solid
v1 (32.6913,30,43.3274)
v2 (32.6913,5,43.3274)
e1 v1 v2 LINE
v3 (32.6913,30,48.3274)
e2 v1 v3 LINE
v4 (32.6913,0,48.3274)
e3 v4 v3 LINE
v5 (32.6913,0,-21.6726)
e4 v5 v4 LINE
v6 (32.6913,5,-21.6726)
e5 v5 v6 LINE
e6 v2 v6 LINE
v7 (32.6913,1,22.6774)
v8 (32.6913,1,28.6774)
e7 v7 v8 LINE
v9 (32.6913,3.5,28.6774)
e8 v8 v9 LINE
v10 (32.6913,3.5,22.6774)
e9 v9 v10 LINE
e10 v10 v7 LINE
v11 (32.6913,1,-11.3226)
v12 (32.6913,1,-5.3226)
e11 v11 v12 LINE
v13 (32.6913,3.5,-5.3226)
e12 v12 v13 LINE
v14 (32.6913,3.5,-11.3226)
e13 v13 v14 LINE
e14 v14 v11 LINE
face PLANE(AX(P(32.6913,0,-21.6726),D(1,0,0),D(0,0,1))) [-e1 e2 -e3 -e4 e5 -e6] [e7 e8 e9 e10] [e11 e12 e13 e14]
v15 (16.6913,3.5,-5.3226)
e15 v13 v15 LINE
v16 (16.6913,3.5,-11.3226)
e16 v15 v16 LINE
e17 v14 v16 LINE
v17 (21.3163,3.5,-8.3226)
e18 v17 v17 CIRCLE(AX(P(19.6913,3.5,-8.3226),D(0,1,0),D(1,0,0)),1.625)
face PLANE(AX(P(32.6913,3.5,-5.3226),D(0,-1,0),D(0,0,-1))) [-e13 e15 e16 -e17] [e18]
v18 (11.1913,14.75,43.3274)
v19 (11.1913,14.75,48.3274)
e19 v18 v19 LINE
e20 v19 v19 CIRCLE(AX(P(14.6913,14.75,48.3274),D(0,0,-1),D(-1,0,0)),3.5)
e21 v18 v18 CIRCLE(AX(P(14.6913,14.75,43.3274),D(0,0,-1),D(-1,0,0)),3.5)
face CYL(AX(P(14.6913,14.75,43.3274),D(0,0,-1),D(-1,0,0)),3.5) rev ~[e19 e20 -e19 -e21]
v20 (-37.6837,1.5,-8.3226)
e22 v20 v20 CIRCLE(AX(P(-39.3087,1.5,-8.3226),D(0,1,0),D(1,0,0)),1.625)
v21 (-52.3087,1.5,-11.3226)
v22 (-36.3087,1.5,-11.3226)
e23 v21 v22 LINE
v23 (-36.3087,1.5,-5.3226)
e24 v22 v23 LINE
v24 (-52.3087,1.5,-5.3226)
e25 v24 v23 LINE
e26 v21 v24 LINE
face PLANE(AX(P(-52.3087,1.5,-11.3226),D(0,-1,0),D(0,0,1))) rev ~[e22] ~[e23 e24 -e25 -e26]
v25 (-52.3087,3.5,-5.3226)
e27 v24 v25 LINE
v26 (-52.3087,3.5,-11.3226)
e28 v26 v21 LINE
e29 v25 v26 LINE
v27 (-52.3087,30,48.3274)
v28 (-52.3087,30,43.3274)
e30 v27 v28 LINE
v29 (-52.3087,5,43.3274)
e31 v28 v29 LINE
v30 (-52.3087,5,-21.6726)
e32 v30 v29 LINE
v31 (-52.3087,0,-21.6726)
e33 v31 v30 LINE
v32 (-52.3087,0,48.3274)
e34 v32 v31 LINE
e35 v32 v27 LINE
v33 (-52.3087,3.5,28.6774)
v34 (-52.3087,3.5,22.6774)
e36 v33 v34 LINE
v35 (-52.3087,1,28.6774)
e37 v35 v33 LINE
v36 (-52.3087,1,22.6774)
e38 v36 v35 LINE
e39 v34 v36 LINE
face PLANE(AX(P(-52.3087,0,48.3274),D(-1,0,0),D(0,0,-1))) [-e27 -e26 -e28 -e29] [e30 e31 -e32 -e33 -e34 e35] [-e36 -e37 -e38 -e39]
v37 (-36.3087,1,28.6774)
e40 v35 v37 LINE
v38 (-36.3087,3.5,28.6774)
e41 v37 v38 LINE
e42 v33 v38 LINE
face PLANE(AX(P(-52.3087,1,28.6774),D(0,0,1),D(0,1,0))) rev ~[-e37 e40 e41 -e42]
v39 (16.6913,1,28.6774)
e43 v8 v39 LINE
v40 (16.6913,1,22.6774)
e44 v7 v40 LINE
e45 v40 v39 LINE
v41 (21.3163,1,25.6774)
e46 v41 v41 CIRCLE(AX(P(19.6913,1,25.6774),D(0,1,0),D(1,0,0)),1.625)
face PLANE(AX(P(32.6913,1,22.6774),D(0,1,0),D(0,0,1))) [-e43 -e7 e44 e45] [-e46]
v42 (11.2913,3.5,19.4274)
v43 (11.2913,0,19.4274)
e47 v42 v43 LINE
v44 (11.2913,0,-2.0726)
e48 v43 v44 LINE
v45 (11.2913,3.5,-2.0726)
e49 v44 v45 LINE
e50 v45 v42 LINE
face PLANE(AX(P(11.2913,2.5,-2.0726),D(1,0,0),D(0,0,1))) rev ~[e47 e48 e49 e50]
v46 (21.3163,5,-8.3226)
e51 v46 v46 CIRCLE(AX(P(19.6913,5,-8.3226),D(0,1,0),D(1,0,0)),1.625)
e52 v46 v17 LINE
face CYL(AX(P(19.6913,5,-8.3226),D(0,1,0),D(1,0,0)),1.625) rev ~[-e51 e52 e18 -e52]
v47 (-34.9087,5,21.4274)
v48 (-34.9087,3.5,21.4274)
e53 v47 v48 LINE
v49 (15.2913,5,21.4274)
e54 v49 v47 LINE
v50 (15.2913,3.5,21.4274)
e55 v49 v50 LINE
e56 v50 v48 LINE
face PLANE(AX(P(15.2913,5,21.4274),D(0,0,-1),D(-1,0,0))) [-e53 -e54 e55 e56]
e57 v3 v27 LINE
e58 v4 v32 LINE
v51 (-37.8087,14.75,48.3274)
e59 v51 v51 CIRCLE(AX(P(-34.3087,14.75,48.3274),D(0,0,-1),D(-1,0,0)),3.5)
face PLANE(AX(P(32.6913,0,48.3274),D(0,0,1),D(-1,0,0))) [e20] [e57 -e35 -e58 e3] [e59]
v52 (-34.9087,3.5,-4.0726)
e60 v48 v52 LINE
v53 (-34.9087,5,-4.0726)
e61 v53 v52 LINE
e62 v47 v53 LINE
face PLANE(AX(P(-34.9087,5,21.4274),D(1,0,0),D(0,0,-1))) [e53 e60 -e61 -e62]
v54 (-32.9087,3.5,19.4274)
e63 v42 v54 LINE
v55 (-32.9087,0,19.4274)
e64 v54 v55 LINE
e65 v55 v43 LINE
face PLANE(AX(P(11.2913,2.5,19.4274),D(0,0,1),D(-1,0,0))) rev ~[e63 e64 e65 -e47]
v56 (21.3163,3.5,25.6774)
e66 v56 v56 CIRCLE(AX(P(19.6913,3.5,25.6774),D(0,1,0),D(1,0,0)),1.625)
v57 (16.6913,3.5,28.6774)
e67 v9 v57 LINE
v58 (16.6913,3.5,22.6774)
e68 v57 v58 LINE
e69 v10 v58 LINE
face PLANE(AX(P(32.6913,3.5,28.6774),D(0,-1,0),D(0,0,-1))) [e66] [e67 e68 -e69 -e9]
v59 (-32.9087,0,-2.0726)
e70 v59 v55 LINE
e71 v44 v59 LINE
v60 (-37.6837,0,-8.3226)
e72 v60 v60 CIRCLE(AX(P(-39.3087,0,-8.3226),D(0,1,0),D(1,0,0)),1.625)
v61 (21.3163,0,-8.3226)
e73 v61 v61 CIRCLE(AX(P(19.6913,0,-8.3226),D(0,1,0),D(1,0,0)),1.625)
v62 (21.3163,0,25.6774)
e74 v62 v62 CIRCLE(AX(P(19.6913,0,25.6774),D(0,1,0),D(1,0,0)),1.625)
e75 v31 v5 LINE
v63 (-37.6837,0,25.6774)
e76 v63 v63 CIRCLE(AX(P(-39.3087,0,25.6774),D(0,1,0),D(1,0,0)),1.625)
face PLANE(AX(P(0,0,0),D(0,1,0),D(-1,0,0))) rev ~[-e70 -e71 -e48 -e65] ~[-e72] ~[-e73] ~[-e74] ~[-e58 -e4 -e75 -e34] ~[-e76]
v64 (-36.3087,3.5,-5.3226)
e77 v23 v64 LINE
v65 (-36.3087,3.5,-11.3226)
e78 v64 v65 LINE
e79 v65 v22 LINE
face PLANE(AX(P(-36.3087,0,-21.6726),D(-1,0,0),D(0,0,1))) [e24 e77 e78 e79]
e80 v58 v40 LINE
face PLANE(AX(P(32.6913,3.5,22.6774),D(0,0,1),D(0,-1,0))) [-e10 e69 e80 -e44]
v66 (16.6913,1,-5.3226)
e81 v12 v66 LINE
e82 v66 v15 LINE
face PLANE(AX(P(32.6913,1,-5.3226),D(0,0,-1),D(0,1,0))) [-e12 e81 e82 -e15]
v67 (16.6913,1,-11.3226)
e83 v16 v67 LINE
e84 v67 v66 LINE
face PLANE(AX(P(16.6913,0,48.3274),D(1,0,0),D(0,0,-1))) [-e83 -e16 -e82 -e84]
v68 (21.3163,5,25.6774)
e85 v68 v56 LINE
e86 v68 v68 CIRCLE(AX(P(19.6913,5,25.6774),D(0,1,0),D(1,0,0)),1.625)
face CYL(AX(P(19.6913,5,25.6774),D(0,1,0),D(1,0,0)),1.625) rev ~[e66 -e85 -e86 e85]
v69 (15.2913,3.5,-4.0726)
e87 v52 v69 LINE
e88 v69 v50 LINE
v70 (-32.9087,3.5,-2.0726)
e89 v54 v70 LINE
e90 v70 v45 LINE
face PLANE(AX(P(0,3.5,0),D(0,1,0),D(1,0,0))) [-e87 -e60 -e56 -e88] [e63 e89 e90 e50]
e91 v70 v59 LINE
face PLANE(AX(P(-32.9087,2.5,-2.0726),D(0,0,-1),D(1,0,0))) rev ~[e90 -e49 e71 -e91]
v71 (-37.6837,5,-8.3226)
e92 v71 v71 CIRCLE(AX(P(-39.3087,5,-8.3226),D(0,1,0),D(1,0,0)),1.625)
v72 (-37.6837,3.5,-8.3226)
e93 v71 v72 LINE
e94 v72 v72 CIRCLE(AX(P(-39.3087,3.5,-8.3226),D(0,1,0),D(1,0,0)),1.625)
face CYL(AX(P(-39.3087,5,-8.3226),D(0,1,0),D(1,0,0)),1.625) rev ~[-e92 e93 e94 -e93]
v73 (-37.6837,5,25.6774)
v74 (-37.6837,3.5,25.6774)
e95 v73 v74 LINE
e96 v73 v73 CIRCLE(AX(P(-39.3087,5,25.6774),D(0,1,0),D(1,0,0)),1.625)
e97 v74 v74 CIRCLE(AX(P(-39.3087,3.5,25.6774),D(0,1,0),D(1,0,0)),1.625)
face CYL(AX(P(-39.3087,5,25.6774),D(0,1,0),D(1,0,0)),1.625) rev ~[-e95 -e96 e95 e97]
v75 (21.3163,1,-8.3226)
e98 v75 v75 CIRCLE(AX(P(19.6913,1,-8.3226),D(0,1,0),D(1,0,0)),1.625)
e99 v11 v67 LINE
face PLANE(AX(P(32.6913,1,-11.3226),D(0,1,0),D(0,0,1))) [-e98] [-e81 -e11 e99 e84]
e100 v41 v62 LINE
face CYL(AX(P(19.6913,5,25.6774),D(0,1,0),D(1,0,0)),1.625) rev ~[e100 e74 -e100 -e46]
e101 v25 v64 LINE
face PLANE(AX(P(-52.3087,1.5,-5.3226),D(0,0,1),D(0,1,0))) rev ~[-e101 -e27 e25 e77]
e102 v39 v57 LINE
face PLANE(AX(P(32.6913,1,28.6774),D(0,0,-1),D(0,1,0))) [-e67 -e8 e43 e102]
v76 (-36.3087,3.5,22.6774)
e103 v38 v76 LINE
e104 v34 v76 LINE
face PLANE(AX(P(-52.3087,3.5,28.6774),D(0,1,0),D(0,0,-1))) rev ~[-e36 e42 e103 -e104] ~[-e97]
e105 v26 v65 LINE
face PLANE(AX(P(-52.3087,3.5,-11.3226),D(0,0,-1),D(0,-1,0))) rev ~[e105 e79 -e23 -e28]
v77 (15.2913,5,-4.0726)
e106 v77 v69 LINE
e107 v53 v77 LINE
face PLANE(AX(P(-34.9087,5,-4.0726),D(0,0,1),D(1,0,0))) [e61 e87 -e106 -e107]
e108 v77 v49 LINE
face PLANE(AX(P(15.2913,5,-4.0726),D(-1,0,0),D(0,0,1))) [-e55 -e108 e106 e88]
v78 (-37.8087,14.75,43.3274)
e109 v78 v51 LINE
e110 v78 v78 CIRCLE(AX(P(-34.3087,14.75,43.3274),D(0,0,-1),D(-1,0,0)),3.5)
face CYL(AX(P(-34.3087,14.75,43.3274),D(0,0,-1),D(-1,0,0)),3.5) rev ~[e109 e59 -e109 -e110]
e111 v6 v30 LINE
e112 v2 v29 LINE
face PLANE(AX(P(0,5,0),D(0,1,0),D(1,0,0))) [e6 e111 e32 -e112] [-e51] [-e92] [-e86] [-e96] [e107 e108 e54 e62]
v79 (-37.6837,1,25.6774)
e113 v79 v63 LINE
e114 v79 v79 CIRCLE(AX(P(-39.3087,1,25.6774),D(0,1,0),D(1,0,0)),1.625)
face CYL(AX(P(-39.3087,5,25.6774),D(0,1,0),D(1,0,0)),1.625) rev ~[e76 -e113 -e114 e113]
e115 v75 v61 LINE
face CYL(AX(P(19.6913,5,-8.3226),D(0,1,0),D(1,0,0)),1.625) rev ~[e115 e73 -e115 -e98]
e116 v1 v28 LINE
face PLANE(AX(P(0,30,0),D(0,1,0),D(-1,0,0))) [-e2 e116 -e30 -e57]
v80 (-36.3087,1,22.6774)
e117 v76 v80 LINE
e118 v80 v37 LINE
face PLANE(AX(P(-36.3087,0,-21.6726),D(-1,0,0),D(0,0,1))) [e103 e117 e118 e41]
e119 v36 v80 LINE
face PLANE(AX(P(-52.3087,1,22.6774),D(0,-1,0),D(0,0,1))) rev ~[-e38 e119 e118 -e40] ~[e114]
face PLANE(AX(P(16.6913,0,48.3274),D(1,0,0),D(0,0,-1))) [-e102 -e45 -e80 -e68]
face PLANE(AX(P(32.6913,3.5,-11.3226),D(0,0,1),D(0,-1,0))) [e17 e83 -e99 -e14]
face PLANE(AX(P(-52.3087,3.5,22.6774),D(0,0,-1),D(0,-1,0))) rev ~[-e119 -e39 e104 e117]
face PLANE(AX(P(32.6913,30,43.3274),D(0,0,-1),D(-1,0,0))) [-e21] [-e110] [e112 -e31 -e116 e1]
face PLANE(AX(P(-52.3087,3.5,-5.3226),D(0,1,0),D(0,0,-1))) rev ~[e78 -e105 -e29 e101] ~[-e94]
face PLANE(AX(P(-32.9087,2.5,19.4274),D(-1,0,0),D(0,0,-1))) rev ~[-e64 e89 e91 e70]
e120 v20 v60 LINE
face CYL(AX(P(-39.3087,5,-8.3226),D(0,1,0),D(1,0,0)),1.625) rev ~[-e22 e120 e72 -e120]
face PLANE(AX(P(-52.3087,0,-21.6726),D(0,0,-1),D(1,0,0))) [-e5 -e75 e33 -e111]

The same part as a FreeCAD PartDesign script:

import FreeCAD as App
import Part
import Sketcher
Q = App.Units.Quantity


def add_polygon(sketch, points):
    """Adds a closed chain of lines whose ends are joined by coincident constraints."""
    first, n = sketch.GeometryCount, len(points)
    for a, b in zip(points, points[1:] + points[:1]):
        sketch.addGeometry(Part.LineSegment(App.Vector(*a, 0), App.Vector(*b, 0)), False)
    for i in range(n):
        sketch.addConstraint(Sketcher.Constraint("Coincident", first + i, 2, first + (i + 1) % n, 1))

doc = App.newDocument("Part")
body = doc.addObject("PartDesign::Body", "Body")

# Sketch on XZ plane
sketch1 = doc.addObject("Sketcher::SketchObject", "Sketch")
body.addObject(sketch1)
sketch1.AttachmentSupport = (doc.XZ_Plane, [""])
sketch1.MapMode = "FlatFace"
add_polygon(sketch1, [(33, -22), (-52, -22), (-52, 48), (33, 48)])  # lines 0-3
sketch1.addConstraint(Sketcher.Constraint("Horizontal", 0))
sketch1.addConstraint(Sketcher.Constraint("Vertical", 1))
sketch1.addConstraint(Sketcher.Constraint("Horizontal", 2))
sketch1.addConstraint(Sketcher.Constraint("Vertical", 3))
sketch1.addConstraint(Sketcher.Constraint("DistanceX", 0, 2, 0, 1, Q("85 mm")))
sketch1.addConstraint(Sketcher.Constraint("DistanceY", 1, 1, 1, 2, Q("70 mm")))
sketch1.addConstraint(Sketcher.Constraint("DistanceX", 0, 2, -1, 1, Q("52.3087 mm")))
sketch1.addConstraint(Sketcher.Constraint("DistanceY", 0, 2, -1, 1, Q("21.6726 mm")))
pad1 = doc.addObject("PartDesign::Pad", "Pad")
body.addObject(pad1)
pad1.Profile = sketch1
pad1.Length = 30
pad1.Reversed = True

# Sketch on XZ plane
sketch2 = doc.addObject("Sketcher::SketchObject", "Sketch001")
body.addObject(sketch2)
sketch2.AttachmentSupport = (doc.XZ_Plane, [""])
sketch2.MapMode = "FlatFace"
sketch2.AttachmentOffset = App.Placement(App.Vector(0, 0, -30), App.Rotation())
add_polygon(sketch2, [(33, 43), (33, -22), (-52, -22), (-52, 43)])  # lines 0-3
sketch2.addConstraint(Sketcher.Constraint("Vertical", 0))
sketch2.addConstraint(Sketcher.Constraint("Horizontal", 1))
sketch2.addConstraint(Sketcher.Constraint("Vertical", 2))
sketch2.addConstraint(Sketcher.Constraint("Horizontal", 3))
sketch2.addConstraint(Sketcher.Constraint("DistanceX", 1, 2, 1, 1, Q("85 mm")))
sketch2.addConstraint(Sketcher.Constraint("DistanceY", 0, 2, 0, 1, Q("65 mm")))
sketch2.addConstraint(Sketcher.Constraint("DistanceX", -1, 1, 0, 2, Q("32.6913 mm")))
sketch2.addConstraint(Sketcher.Constraint("DistanceY", 0, 2, -1, 1, Q("21.6726 mm")))
pocket1 = doc.addObject("PartDesign::Pocket", "Pocket")
body.addObject(pocket1)
pocket1.Profile = sketch2
pocket1.Length = 25
pocket1.Reversed = True

# Sketch on XZ plane
sketch3 = doc.addObject("Sketcher::SketchObject", "Sketch002")
body.addObject(sketch3)
sketch3.AttachmentSupport = (doc.XZ_Plane, [""])
sketch3.MapMode = "FlatFace"
sketch3.AttachmentOffset = App.Placement(App.Vector(0, 0, -5), App.Rotation())
add_polygon(sketch3, [(15.3, -4.1), (-34.9, -4.1), (-34.9, 21.4), (15.3, 21.4)])  # lines 0-3
sketch3.addGeometry(Part.Circle(App.Vector(-39.3, 25.7, 0), App.Vector(0, 0, 1), 1.6), False)  # 4
sketch3.addGeometry(Part.Circle(App.Vector(-39.3, -8.3, 0), App.Vector(0, 0, 1), 1.6), False)  # 5
sketch3.addGeometry(Part.Circle(App.Vector(19.7, -8.3, 0), App.Vector(0, 0, 1), 1.6), False)  # 6
sketch3.addGeometry(Part.Circle(App.Vector(19.7, 25.7, 0), App.Vector(0, 0, 1), 1.6), False)  # 7
sketch3.addConstraint(Sketcher.Constraint("Horizontal", 0))
sketch3.addConstraint(Sketcher.Constraint("Vertical", 1))
sketch3.addConstraint(Sketcher.Constraint("Horizontal", 2))
sketch3.addConstraint(Sketcher.Constraint("Vertical", 3))
sketch3.addConstraint(Sketcher.Constraint("Equal", 4, 5))
sketch3.addConstraint(Sketcher.Constraint("Equal", 5, 6))
sketch3.addConstraint(Sketcher.Constraint("Equal", 6, 7))
sketch3.addConstraint(Sketcher.Constraint("Horizontal", 5, 3, 6, 3))
sketch3.addConstraint(Sketcher.Constraint("Horizontal", 4, 3, 7, 3))
sketch3.addConstraint(Sketcher.Constraint("Vertical", 4, 3, 5, 3))
sketch3.addConstraint(Sketcher.Constraint("Vertical", 6, 3, 7, 3))
sketch3.addConstraint(Sketcher.Constraint("Diameter", 4, Q("3.25 mm")))
sketch3.addConstraint(Sketcher.Constraint("DistanceY", 1, 1, 1, 2, Q("25.5 mm")))
sketch3.addConstraint(Sketcher.Constraint("DistanceY", 5, 3, 4, 3, Q("34 mm")))
sketch3.addConstraint(Sketcher.Constraint("DistanceX", 5, 3, 6, 3, Q("59 mm")))
sketch3.addConstraint(Sketcher.Constraint("DistanceX", 0, 2, 0, 1, Q("50.2 mm")))
sketch3.addConstraint(Sketcher.Constraint("DistanceX", 5, 3, 0, 2, Q("4.4 mm")))
sketch3.addConstraint(Sketcher.Constraint("DistanceY", 5, 3, 0, 2, Q("4.25 mm")))
sketch3.addConstraint(Sketcher.Constraint("DistanceX", 4, 3, -1, 1, Q("39.3087 mm")))
sketch3.addConstraint(Sketcher.Constraint("DistanceY", -1, 1, 4, 3, Q("25.6774 mm")))
pocket2 = doc.addObject("PartDesign::Pocket", "Pocket001")
body.addObject(pocket2)
pocket2.Profile = sketch3
pocket2.Length = 1.5
pocket2.Reversed = True

# Sketch on XZ plane
sketch4 = doc.addObject("Sketcher::SketchObject", "Sketch003")
body.addObject(sketch4)
sketch4.AttachmentSupport = (doc.XZ_Plane, [""])
sketch4.MapMode = "FlatFace"
sketch4.AttachmentOffset = App.Placement(App.Vector(0, 0, -3.5), App.Rotation())
add_polygon(sketch4, [(11, -2), (-33, -2), (-33, 19), (11, 19)])  # lines 0-3
sketch4.addConstraint(Sketcher.Constraint("Horizontal", 0))
sketch4.addConstraint(Sketcher.Constraint("Vertical", 1))
sketch4.addConstraint(Sketcher.Constraint("Horizontal", 2))
sketch4.addConstraint(Sketcher.Constraint("Vertical", 3))
sketch4.addConstraint(Sketcher.Constraint("DistanceX", 0, 2, 0, 1, Q("44.2 mm")))
sketch4.addConstraint(Sketcher.Constraint("DistanceY", 1, 1, 1, 2, Q("21.5 mm")))
sketch4.addConstraint(Sketcher.Constraint("DistanceX", 0, 2, -1, 1, Q("32.9087 mm")))
sketch4.addConstraint(Sketcher.Constraint("DistanceY", 0, 2, -1, 1, Q("2.0726 mm")))
pocket3 = doc.addObject("PartDesign::Pocket", "Pocket002")
body.addObject(pocket3)
pocket3.Profile = sketch4
pocket3.Length = 1
pocket3.Reversed = True

# Sketch on XY plane
sketch5 = doc.addObject("Sketcher::SketchObject", "Sketch004")
body.addObject(sketch5)
sketch5.AttachmentSupport = (doc.XY_Plane, [""])
sketch5.MapMode = "FlatFace"
sketch5.AttachmentOffset = App.Placement(App.Vector(0, 0, 43.3274), App.Rotation())
sketch5.addGeometry(Part.Circle(App.Vector(14.7, 14.8, 0), App.Vector(0, 0, 1), 3.5), False)
sketch5.addGeometry(Part.Circle(App.Vector(-34.3, 14.8, 0), App.Vector(0, 0, 1), 3.5), False)
sketch5.addConstraint(Sketcher.Constraint("Equal", 0, 1))
sketch5.addConstraint(Sketcher.Constraint("Horizontal", 0, 3, 1, 3))
sketch5.addConstraint(Sketcher.Constraint("Diameter", 0, Q("7 mm")))
sketch5.addConstraint(Sketcher.Constraint("DistanceX", 1, 3, 0, 3, Q("49 mm")))
sketch5.addConstraint(Sketcher.Constraint("DistanceY", -1, 1, 0, 3, Q("14.75 mm")))
sketch5.addConstraint(Sketcher.Constraint("DistanceX", -1, 1, 0, 3, Q("14.6913 mm")))
pocket4 = doc.addObject("PartDesign::Pocket", "Pocket003")
body.addObject(pocket4)
pocket4.Profile = sketch5
pocket4.Length = 5
pocket4.Reversed = True

# Sketch on XZ plane
sketch6 = doc.addObject("Sketcher::SketchObject", "Sketch005")
body.addObject(sketch6)
sketch6.AttachmentSupport = (doc.XZ_Plane, [""])
sketch6.MapMode = "FlatFace"
sketch6.AttachmentOffset = App.Placement(App.Vector(0, 0, -2.5), App.Rotation())
add_polygon(sketch6, [(11, -2), (-33, -2), (-33, 19), (11, 19)])  # lines 0-3
sketch6.addConstraint(Sketcher.Constraint("Horizontal", 0))
sketch6.addConstraint(Sketcher.Constraint("Vertical", 1))
sketch6.addConstraint(Sketcher.Constraint("Horizontal", 2))
sketch6.addConstraint(Sketcher.Constraint("Vertical", 3))
sketch6.addConstraint(Sketcher.Constraint("DistanceX", 0, 2, 0, 1, Q("44.2 mm")))
sketch6.addConstraint(Sketcher.Constraint("DistanceY", 1, 1, 1, 2, Q("21.5 mm")))
sketch6.addConstraint(Sketcher.Constraint("DistanceX", 0, 2, -1, 1, Q("32.9087 mm")))
sketch6.addConstraint(Sketcher.Constraint("DistanceY", 0, 2, -1, 1, Q("2.0726 mm")))
pocket5 = doc.addObject("PartDesign::Pocket", "Pocket004")
body.addObject(pocket5)
pocket5.Profile = sketch6
pocket5.Type = "ThroughAll"
pocket5.Midplane = True

# Sketch on YZ plane
sketch7 = doc.addObject("Sketcher::SketchObject", "Sketch006")
body.addObject(sketch7)
sketch7.AttachmentSupport = (doc.YZ_Plane, [""])
sketch7.MapMode = "FlatFace"
sketch7.AttachmentOffset = App.Placement(App.Vector(0, 0, 32.6913), App.Rotation())
add_polygon(sketch7, [(3.5, 22.7), (3.5, 28.7), (1, 28.7), (1, 22.7)])  # lines 0-3
add_polygon(sketch7, [(3.5, -11.3), (3.5, -5.3), (1, -5.3), (1, -11.3)])  # lines 4-7
sketch7.addConstraint(Sketcher.Constraint("Vertical", 0))
sketch7.addConstraint(Sketcher.Constraint("Horizontal", 1))
sketch7.addConstraint(Sketcher.Constraint("Vertical", 2))
sketch7.addConstraint(Sketcher.Constraint("Horizontal", 3))
sketch7.addConstraint(Sketcher.Constraint("Vertical", 4))
sketch7.addConstraint(Sketcher.Constraint("Horizontal", 5))
sketch7.addConstraint(Sketcher.Constraint("Vertical", 6))
sketch7.addConstraint(Sketcher.Constraint("Horizontal", 7))
sketch7.addConstraint(Sketcher.Constraint("Vertical", 3, 2, 4, 2))
sketch7.addConstraint(Sketcher.Constraint("Vertical", 2, 2, 5, 2))
sketch7.addConstraint(Sketcher.Constraint("Equal", 2, 4))
sketch7.addConstraint(Sketcher.Constraint("DistanceY", 0, 1, 0, 2, Q("6 mm")))
sketch7.addConstraint(Sketcher.Constraint("DistanceX", 1, 2, 1, 1, Q("2.5 mm")))
sketch7.addConstraint(Sketcher.Constraint("DistanceX", -1, 1, 1, 2, Q("1 mm")))
sketch7.addConstraint(Sketcher.Constraint("DistanceY", 4, 2, 3, 2, Q("28 mm")))
sketch7.addConstraint(Sketcher.Constraint("DistanceY", -1, 1, 0, 2, Q("28.6774 mm")))
pocket6 = doc.addObject("PartDesign::Pocket", "Pocket005")
body.addObject(pocket6)
pocket6.Profile = sketch7
pocket6.Length = 16

# Sketch on YZ plane
sketch8 = doc.addObject("Sketcher::SketchObject", "Sketch007")
body.addObject(sketch8)
sketch8.AttachmentSupport = (doc.YZ_Plane, [""])
sketch8.MapMode = "FlatFace"
sketch8.AttachmentOffset = App.Placement(App.Vector(0, 0, -52.3087), App.Rotation())
add_polygon(sketch8, [(3.5, -11.3), (1.5, -11.3), (1.5, -5.3), (3.5, -5.3)])  # lines 0-3
add_polygon(sketch8, [(3.5, 22.7), (1, 22.7), (1, 28.7), (3.5, 28.7)])  # lines 4-7
sketch8.addConstraint(Sketcher.Constraint("Horizontal", 0))
sketch8.addConstraint(Sketcher.Constraint("Vertical", 1))
sketch8.addConstraint(Sketcher.Constraint("Horizontal", 2))
sketch8.addConstraint(Sketcher.Constraint("Vertical", 3))
sketch8.addConstraint(Sketcher.Constraint("Horizontal", 4))
sketch8.addConstraint(Sketcher.Constraint("Vertical", 5))
sketch8.addConstraint(Sketcher.Constraint("Horizontal", 6))
sketch8.addConstraint(Sketcher.Constraint("Vertical", 7))
sketch8.addConstraint(Sketcher.Constraint("Vertical", 3, 2, 6, 2))
sketch8.addConstraint(Sketcher.Constraint("Equal", 3, 5))
sketch8.addConstraint(Sketcher.Constraint("DistanceX", 0, 2, 0, 1, Q("2 mm")))
sketch8.addConstraint(Sketcher.Constraint("DistanceY", 1, 1, 1, 2, Q("6 mm")))
sketch8.addConstraint(Sketcher.Constraint("DistanceX", 4, 2, 4, 1, Q("2.5 mm")))
sketch8.addConstraint(Sketcher.Constraint("DistanceX", -1, 1, 4, 2, Q("1 mm")))
sketch8.addConstraint(Sketcher.Constraint("DistanceY", 1, 2, 4, 2, Q("28 mm")))
sketch8.addConstraint(Sketcher.Constraint("DistanceY", 0, 2, -1, 1, Q("11.3226 mm")))
pocket7 = doc.addObject("PartDesign::Pocket", "Pocket006")
body.addObject(pocket7)
pocket7.Profile = sketch8
pocket7.Length = 16
pocket7.Reversed = True

# Sketch on XZ plane
sketch9 = doc.addObject("Sketcher::SketchObject", "Sketch008")
body.addObject(sketch9)
sketch9.AttachmentSupport = (doc.XZ_Plane, [""])
sketch9.MapMode = "FlatFace"
sketch9.AttachmentOffset = App.Placement(App.Vector(0, 0, -5), App.Rotation())
sketch9.addGeometry(Part.Circle(App.Vector(-39.3, 25.7, 0), App.Vector(0, 0, 1), 1.6), False)
sketch9.addGeometry(Part.Circle(App.Vector(19.7, -8.3, 0), App.Vector(0, 0, 1), 1.6), False)
sketch9.addGeometry(Part.Circle(App.Vector(-39.3, -8.3, 0), App.Vector(0, 0, 1), 1.6), False)
sketch9.addGeometry(Part.Circle(App.Vector(19.7, 25.7, 0), App.Vector(0, 0, 1), 1.6), False)
sketch9.addConstraint(Sketcher.Constraint("Equal", 0, 1))
sketch9.addConstraint(Sketcher.Constraint("Equal", 1, 2))
sketch9.addConstraint(Sketcher.Constraint("Equal", 2, 3))
sketch9.addConstraint(Sketcher.Constraint("Horizontal", 1, 3, 2, 3))
sketch9.addConstraint(Sketcher.Constraint("Horizontal", 0, 3, 3, 3))
sketch9.addConstraint(Sketcher.Constraint("Vertical", 0, 3, 2, 3))
sketch9.addConstraint(Sketcher.Constraint("Vertical", 1, 3, 3, 3))
sketch9.addConstraint(Sketcher.Constraint("Diameter", 0, Q("3.25 mm")))
sketch9.addConstraint(Sketcher.Constraint("DistanceX", 0, 3, 1, 3, Q("59 mm")))
sketch9.addConstraint(Sketcher.Constraint("DistanceY", 1, 3, 0, 3, Q("34 mm")))
sketch9.addConstraint(Sketcher.Constraint("DistanceX", 0, 3, -1, 1, Q("39.3087 mm")))
sketch9.addConstraint(Sketcher.Constraint("DistanceY", -1, 1, 0, 3, Q("25.6774 mm")))
pocket8 = doc.addObject("PartDesign::Pocket", "Pocket007")
body.addObject(pocket8)
pocket8.Profile = sketch9
pocket8.Type = "ThroughAll"
pocket8.Reversed = True

doc.recompute()
